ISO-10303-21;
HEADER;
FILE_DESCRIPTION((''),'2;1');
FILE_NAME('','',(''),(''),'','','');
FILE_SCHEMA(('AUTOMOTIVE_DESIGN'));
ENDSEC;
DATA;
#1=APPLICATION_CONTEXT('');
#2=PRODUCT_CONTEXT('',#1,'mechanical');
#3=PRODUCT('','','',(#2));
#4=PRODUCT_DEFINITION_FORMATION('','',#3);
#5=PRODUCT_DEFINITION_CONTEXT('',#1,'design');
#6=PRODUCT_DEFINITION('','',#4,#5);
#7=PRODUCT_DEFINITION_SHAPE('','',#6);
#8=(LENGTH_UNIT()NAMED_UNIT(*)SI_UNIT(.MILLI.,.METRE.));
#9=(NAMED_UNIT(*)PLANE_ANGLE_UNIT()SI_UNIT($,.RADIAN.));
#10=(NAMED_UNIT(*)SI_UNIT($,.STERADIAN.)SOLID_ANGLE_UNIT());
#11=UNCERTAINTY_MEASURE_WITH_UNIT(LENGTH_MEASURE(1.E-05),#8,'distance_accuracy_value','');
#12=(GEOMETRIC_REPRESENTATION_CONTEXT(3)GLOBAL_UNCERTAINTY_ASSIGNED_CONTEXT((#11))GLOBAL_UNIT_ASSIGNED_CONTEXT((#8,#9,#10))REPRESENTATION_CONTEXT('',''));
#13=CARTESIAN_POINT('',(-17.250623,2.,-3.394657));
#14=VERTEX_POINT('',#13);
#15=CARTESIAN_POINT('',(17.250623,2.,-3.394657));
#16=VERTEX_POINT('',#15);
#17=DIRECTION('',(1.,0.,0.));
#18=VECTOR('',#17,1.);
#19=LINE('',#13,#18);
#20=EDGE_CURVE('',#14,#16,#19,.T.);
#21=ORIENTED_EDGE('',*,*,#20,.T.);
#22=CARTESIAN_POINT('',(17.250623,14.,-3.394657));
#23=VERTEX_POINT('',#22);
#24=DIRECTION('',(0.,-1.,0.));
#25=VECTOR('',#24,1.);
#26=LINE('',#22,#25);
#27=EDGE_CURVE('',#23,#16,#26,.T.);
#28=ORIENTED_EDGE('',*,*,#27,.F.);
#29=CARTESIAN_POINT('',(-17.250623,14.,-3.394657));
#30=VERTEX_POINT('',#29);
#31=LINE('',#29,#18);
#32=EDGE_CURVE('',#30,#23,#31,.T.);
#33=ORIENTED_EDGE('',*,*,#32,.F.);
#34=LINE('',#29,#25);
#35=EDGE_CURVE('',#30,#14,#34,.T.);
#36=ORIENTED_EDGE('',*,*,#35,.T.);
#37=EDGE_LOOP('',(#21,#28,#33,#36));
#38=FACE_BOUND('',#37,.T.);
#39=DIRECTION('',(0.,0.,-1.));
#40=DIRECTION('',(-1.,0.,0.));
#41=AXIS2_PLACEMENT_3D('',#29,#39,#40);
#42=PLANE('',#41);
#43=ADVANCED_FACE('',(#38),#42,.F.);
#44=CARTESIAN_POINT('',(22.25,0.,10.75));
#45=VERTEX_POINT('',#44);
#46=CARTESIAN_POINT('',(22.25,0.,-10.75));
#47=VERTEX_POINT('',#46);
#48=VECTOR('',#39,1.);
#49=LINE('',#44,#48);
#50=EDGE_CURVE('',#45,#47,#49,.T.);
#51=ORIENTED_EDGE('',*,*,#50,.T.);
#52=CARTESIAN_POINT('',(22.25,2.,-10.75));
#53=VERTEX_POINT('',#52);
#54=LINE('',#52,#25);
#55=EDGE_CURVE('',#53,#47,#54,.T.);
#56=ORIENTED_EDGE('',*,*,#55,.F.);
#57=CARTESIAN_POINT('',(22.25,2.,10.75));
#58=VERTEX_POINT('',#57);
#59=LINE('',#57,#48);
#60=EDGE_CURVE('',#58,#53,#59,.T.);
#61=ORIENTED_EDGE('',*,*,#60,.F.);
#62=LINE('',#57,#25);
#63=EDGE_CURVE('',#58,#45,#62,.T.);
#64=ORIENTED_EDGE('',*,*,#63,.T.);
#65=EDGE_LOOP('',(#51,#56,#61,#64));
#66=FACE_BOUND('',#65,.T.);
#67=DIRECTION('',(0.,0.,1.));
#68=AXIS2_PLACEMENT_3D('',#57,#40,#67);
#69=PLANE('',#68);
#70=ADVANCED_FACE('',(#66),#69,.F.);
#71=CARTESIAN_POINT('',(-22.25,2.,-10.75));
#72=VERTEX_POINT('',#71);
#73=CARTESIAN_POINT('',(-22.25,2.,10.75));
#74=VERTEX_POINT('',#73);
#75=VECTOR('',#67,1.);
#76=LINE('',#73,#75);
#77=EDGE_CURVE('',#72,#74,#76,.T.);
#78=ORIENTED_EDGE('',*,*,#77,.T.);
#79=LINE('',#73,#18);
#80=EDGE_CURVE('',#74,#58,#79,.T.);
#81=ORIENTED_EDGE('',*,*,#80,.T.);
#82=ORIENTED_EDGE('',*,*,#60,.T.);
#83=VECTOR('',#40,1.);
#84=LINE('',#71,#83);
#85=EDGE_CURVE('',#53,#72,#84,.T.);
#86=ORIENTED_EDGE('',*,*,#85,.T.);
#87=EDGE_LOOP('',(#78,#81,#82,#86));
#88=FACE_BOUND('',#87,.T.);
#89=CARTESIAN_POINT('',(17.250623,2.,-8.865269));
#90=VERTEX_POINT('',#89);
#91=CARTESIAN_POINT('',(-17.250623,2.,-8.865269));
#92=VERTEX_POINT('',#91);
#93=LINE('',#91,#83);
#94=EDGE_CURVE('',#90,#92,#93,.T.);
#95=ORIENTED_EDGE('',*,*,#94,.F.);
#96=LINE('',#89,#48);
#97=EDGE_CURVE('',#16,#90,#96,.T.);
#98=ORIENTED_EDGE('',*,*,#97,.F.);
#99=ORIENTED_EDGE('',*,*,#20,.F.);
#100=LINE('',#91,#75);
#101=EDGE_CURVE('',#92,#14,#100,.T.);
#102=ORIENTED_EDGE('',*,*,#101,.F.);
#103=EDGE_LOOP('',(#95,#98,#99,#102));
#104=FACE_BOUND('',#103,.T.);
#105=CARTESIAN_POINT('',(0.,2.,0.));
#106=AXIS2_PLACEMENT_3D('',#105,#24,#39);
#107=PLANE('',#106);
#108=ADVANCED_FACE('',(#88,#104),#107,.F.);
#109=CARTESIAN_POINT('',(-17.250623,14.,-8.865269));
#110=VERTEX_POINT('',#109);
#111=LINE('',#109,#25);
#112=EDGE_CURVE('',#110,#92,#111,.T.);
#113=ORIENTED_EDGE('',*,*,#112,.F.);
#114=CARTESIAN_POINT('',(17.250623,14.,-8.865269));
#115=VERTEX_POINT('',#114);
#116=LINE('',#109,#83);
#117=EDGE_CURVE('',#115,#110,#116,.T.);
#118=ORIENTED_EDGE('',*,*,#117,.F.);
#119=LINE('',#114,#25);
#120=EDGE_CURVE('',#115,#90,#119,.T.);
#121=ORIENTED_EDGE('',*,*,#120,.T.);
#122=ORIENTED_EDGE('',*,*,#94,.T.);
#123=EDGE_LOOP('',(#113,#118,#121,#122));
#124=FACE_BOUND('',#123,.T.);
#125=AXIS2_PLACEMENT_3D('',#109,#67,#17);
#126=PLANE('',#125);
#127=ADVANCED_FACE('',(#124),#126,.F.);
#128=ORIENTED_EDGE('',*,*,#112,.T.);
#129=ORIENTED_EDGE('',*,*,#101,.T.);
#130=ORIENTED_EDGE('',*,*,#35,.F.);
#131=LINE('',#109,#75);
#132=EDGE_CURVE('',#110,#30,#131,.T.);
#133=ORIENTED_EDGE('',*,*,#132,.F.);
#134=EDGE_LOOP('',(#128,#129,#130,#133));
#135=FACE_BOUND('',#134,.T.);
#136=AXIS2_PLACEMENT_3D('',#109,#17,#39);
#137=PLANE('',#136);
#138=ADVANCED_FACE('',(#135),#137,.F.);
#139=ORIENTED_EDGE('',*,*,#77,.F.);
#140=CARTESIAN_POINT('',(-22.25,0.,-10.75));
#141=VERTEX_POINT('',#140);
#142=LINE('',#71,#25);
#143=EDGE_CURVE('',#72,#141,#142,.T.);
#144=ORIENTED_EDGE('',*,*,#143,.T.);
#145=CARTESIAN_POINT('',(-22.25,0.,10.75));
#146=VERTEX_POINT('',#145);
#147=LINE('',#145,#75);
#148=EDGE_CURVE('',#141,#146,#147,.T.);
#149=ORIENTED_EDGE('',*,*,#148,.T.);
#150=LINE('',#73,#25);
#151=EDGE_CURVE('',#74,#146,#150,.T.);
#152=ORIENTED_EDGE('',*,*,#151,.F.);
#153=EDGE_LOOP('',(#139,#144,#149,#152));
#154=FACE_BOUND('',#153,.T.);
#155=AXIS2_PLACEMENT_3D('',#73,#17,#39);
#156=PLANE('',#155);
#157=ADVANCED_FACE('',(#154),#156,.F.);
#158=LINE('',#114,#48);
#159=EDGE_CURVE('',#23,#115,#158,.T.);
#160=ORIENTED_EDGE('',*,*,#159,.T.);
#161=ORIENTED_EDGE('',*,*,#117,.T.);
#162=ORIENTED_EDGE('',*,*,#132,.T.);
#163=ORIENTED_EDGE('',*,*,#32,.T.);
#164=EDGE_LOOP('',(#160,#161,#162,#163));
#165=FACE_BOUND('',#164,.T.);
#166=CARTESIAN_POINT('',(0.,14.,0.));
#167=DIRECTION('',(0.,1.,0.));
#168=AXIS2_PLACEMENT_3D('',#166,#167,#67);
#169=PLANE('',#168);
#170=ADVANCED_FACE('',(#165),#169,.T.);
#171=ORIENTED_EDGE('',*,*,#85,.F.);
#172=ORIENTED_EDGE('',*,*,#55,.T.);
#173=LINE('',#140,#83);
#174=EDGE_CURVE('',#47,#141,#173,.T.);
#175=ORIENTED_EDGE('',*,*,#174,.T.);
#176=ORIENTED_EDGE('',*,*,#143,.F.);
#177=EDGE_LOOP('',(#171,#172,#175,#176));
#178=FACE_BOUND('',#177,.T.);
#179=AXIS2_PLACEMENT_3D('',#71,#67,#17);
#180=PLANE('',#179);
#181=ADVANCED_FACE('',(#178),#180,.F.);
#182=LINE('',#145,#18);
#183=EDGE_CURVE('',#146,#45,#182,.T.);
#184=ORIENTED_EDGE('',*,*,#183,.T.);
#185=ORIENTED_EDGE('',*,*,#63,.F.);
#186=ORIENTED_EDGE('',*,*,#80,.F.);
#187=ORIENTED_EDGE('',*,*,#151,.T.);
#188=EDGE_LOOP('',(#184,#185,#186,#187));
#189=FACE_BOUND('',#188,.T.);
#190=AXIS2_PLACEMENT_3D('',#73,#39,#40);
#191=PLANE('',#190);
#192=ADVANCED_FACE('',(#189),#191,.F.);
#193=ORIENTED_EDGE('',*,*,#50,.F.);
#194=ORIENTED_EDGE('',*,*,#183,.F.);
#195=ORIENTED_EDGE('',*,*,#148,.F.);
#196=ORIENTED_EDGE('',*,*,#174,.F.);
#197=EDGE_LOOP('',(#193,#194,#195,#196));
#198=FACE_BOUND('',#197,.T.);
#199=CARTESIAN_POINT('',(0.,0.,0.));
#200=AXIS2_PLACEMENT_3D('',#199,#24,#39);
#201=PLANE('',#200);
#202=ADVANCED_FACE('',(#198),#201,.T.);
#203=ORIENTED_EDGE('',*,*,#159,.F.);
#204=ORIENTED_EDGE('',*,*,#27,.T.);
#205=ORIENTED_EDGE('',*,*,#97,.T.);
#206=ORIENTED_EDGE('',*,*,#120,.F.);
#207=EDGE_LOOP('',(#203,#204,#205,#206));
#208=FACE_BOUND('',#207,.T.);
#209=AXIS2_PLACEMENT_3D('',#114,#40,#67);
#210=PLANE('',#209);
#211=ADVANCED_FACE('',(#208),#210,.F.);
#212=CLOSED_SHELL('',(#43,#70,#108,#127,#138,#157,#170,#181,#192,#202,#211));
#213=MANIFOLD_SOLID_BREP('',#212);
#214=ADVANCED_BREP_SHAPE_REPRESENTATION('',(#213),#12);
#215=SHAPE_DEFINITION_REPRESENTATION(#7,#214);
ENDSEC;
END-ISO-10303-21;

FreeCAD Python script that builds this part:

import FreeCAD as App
import Part
import Sketcher

doc = App.newDocument("Part")
body = doc.addObject("PartDesign::Body", "Body")

sketch1 = body.newObject("Sketcher::SketchObject", "Sketch")
sketch1.AttachmentSupport = (doc.getObject("XZ_Plane"), [""])
sketch1.MapMode = "FlatFace"
sketch1.addGeometry([
    Part.LineSegment(App.Vector(-22, -11, 0), App.Vector(-22, 11, 0)),
    Part.LineSegment(App.Vector(-22, 11, 0), App.Vector(22, 11, 0)),
    Part.LineSegment(App.Vector(22, 11, 0), App.Vector(22, -11, 0)),
    Part.LineSegment(App.Vector(22, -11, 0), App.Vector(-22, -11, 0)),
], False)
sketch1.addConstraint([
    Sketcher.Constraint("Coincident", 0, 2, 1, 1),
    Sketcher.Constraint("Coincident", 1, 2, 2, 1),
    Sketcher.Constraint("Coincident", 2, 2, 3, 1),
    Sketcher.Constraint("Coincident", 3, 2, 0, 1),
    Sketcher.Constraint("Vertical", 0),
    Sketcher.Constraint("Horizontal", 1),
    Sketcher.Constraint("Vertical", 2),
    Sketcher.Constraint("Horizontal", 3),
    Sketcher.Constraint("Symmetric", 0, 2, 2, 2, -1, 1),
    Sketcher.Constraint("DistanceX", 1, 1, 1, 2, 44.5),
    Sketcher.Constraint("DistanceY", 0, 1, 0, 2, 21.5),
])
pad1 = body.newObject("PartDesign::Pad", "Pad")
pad1.Profile = sketch1
pad1.Length = 2
pad1.Reversed = True

sketch2 = body.newObject("Sketcher::SketchObject", "Sketch001")
sketch2.AttachmentSupport = (doc.getObject("XZ_Plane"), [""])
sketch2.MapMode = "FlatFace"
sketch2.AttachmentOffset = App.Placement(App.Vector(0, 0, -2), App.Rotation())
sketch2.addGeometry([
    Part.LineSegment(App.Vector(-17, -9, 0), App.Vector(-17, -3, 0)),
    Part.LineSegment(App.Vector(-17, -3, 0), App.Vector(17, -3, 0)),
    Part.LineSegment(App.Vector(17, -3, 0), App.Vector(17, -9, 0)),
    Part.LineSegment(App.Vector(17, -9, 0), App.Vector(-17, -9, 0)),
], False)
sketch2.addConstraint([
    Sketcher.Constraint("Coincident", 0, 2, 1, 1),
    Sketcher.Constraint("Coincident", 1, 2, 2, 1),
    Sketcher.Constraint("Coincident", 2, 2, 3, 1),
    Sketcher.Constraint("Coincident", 3, 2, 0, 1),
    Sketcher.Constraint("Vertical", 0),
    Sketcher.Constraint("Horizontal", 1),
    Sketcher.Constraint("Vertical", 2),
    Sketcher.Constraint("Horizontal", 3),
    Sketcher.Constraint("DistanceX", 1, 1, 1, 2, 34.501246),
    Sketcher.Constraint("DistanceY", 0, 1, 0, 2, 5.470612),
    Sketcher.Constraint("DistanceY", 2, 2, -1, 1, 8.865269),
    Sketcher.Constraint("DistanceX", 0, 2, -1, 1, 17.250623),
])
pad2 = body.newObject("PartDesign::Pad", "Pad001")
pad2.Profile = sketch2
pad2.Length = 12
pad2.Reversed = True

doc.recompute()
